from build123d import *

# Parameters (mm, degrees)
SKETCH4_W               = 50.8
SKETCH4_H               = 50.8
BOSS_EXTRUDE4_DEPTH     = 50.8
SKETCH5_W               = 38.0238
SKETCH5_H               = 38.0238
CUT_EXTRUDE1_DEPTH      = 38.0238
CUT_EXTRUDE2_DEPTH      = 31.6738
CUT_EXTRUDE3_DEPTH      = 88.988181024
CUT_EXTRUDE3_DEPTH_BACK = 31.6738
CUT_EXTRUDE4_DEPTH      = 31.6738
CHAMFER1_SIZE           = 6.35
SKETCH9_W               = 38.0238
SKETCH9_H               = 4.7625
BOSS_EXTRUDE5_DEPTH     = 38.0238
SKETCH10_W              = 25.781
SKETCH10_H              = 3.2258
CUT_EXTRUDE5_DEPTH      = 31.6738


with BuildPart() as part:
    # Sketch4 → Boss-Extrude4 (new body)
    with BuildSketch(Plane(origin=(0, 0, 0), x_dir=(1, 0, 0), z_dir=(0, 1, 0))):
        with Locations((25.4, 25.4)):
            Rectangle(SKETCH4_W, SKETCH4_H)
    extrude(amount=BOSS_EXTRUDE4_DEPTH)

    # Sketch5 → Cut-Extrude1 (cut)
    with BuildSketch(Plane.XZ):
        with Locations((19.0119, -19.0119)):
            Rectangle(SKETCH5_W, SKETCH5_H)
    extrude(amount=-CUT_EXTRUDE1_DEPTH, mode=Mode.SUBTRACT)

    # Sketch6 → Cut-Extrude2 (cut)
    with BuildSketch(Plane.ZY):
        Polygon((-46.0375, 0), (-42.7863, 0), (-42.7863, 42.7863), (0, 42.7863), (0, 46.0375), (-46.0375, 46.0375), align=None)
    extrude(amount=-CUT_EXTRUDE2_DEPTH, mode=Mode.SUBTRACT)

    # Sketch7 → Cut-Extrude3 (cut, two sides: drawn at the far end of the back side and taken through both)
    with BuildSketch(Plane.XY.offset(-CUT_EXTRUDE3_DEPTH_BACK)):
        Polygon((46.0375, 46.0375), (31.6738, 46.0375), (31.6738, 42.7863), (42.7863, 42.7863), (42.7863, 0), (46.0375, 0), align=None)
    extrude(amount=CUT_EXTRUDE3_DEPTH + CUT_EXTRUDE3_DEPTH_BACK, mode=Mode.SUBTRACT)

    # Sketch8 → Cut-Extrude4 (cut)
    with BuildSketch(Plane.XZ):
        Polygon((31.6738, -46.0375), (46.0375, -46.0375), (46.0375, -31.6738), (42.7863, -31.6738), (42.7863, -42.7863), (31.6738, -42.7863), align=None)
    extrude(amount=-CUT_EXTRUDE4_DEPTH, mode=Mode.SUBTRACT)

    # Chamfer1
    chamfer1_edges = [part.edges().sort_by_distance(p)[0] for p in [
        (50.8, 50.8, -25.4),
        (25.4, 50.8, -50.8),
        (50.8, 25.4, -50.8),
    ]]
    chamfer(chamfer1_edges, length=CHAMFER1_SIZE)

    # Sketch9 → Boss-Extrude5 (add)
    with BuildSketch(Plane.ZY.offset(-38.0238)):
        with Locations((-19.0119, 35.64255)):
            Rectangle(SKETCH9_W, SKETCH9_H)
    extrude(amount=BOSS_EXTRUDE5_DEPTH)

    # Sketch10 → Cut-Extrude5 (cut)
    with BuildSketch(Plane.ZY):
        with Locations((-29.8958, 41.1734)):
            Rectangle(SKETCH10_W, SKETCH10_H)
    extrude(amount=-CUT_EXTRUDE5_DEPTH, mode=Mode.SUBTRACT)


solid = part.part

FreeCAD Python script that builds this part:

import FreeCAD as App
import Part
import Sketcher

V = App.Vector
Q = App.Units.Quantity


def edges_at(feature, points):
    """Names of the edges that pass closest to the given points."""
    edges = feature.Shape.Edges
    near = lambda p: min(range(len(edges)), key=lambda i: edges[i].distToShape(Part.Vertex(*p))[0])
    return sorted({f"Edge{near(p) + 1}" for p in points})

doc = App.newDocument("Part")
body = doc.addObject("PartDesign::Body", "Body")

# Sketch on XZ plane
sketch1 = doc.addObject("Sketcher::SketchObject", "Sketch")
body.addObject(sketch1)
sketch1.AttachmentSupport = (doc.XZ_Plane, [""])
sketch1.MapMode = "FlatFace"
sketch1.addGeometry([
    Part.LineSegment(V(0, -50.8, 0), V(0, 0, 0)),
    Part.LineSegment(V(0, 0, 0), V(50.8, 0, 0)),
    Part.LineSegment(V(50.8, 0, 0), V(50.8, -50.8, 0)),
    Part.LineSegment(V(50.8, -50.8, 0), V(0, -50.8, 0)),
], False)
sketch1.addConstraint([
    Sketcher.Constraint("Coincident", 0, 2, 1, 1),
    Sketcher.Constraint("Coincident", 1, 2, 2, 1),
    Sketcher.Constraint("Coincident", 2, 2, 3, 1),
    Sketcher.Constraint("Coincident", 3, 2, 0, 1),
    Sketcher.Constraint("Vertical", 0),
    Sketcher.Constraint("Horizontal", 1),
    Sketcher.Constraint("Vertical", 2),
    Sketcher.Constraint("Horizontal", 3),
    Sketcher.Constraint("Coincident", 0, 2, -1, 1),
    Sketcher.Constraint("Equal", 3, 0),
    Sketcher.Constraint("DistanceX", 1, 1, 1, 2, Q("2 in")),
])
pad1 = doc.addObject("PartDesign::Pad", "Pad")
body.addObject(pad1)
pad1.Profile = sketch1
pad1.Length = Q("2 in")
pad1.Reversed = True

# Sketch on XZ plane
sketch2 = doc.addObject("Sketcher::SketchObject", "Sketch001")
body.addObject(sketch2)
sketch2.AttachmentSupport = (doc.XZ_Plane, [""])
sketch2.MapMode = "FlatFace"
sketch2.addGeometry([
    Part.LineSegment(V(0, 0, 0), V(0, -38.0238, 0)),
    Part.LineSegment(V(0, -38.0238, 0), V(38.0238, -38.0238, 0)),
    Part.LineSegment(V(38.0238, -38.0238, 0), V(38.0238, 0, 0)),
    Part.LineSegment(V(38.0238, 0, 0), V(0, 0, 0)),
], False)
sketch2.addConstraint([
    Sketcher.Constraint("Coincident", 0, 2, 1, 1),
    Sketcher.Constraint("Coincident", 1, 2, 2, 1),
    Sketcher.Constraint("Coincident", 2, 2, 3, 1),
    Sketcher.Constraint("Coincident", 3, 2, 0, 1),
    Sketcher.Constraint("Vertical", 0),
    Sketcher.Constraint("Horizontal", 1),
    Sketcher.Constraint("Vertical", 2),
    Sketcher.Constraint("Horizontal", 3),
    Sketcher.Constraint("Coincident", 3, 2, -1, 1),
    Sketcher.Constraint("Equal", 3, 0),
    Sketcher.Constraint("DistanceX", 1, 1, 1, 2, Q("1.497 in")),
])
pocket1 = doc.addObject("PartDesign::Pocket", "Pocket")
body.addObject(pocket1)
pocket1.Profile = sketch2
pocket1.Length = Q("1.497 in")

# Sketch on YZ plane
sketch3 = doc.addObject("Sketcher::SketchObject", "Sketch002")
body.addObject(sketch3)
sketch3.AttachmentSupport = (doc.YZ_Plane, [""])
sketch3.MapMode = "FlatFace"
sketch3.addGeometry([
    Part.LineSegment(V(0, -46.0375, 0), V(0, -42.7863, 0)),  # 0
    Part.LineSegment(V(0, -42.7863, 0), V(42.7863, -42.7863, 0)),  # 1
    Part.LineSegment(V(42.7863, -42.7863, 0), V(42.7863, 0, 0)),  # 2
    Part.LineSegment(V(42.7863, 0, 0), V(46.0375, 0, 0)),  # 3
    Part.LineSegment(V(46.0375, 0, 0), V(46.0375, -46.0375, 0)),  # 4
    Part.LineSegment(V(46.0375, -46.0375, 0), V(0, -46.0375, 0)),  # 5
], False)
sketch3.addConstraint([
    Sketcher.Constraint("Coincident", 0, 2, 1, 1),
    Sketcher.Constraint("Coincident", 1, 2, 2, 1),
    Sketcher.Constraint("Coincident", 2, 2, 3, 1),
    Sketcher.Constraint("Coincident", 3, 2, 4, 1),
    Sketcher.Constraint("Coincident", 4, 2, 5, 1),
    Sketcher.Constraint("Coincident", 5, 2, 0, 1),
    Sketcher.Constraint("Vertical", 0),
    Sketcher.Constraint("Horizontal", 1),
    Sketcher.Constraint("Vertical", 2),
    Sketcher.Constraint("Horizontal", 3),
    Sketcher.Constraint("Vertical", 4),
    Sketcher.Constraint("Horizontal", 5),
    Sketcher.Constraint("PointOnObject", 0, 2, -2),
    Sketcher.Constraint("PointOnObject", 2, 2, -1),
    Sketcher.Constraint("Equal", 3, 0),
    Sketcher.Constraint("Equal", 1, 2),
    Sketcher.Constraint("DistanceX", 3, 1, 3, 2, Q("0.128 in")),
    Sketcher.Constraint("DistanceX", 5, 2, 5, 1, Q("1.8125 in")),
])
pocket2 = doc.addObject("PartDesign::Pocket", "Pocket001")
body.addObject(pocket2)
pocket2.Profile = sketch3
pocket2.Length = Q("1.247 in")
pocket2.Reversed = True

# Sketch on XY plane
sketch4 = doc.addObject("Sketcher::SketchObject", "Sketch003")
body.addObject(sketch4)
sketch4.AttachmentSupport = (doc.XY_Plane, [""])
sketch4.MapMode = "FlatFace"
sketch4.addGeometry([
    Part.LineSegment(V(46.0375, 46.0375, 0), V(31.6738, 46.0375, 0)),  # 0
    Part.LineSegment(V(31.6738, 46.0375, 0), V(31.6738, 42.7863, 0)),  # 1
    Part.LineSegment(V(31.6738, 42.7863, 0), V(42.7863, 42.7863, 0)),  # 2
    Part.LineSegment(V(42.7863, 42.7863, 0), V(42.7863, 0, 0)),  # 3
    Part.LineSegment(V(42.7863, 0, 0), V(46.0375, 0, 0)),  # 4
    Part.LineSegment(V(46.0375, 0, 0), V(46.0375, 46.0375, 0)),  # 5
], False)
sketch4.addConstraint([
    Sketcher.Constraint("Coincident", 0, 2, 1, 1),
    Sketcher.Constraint("Coincident", 1, 2, 2, 1),
    Sketcher.Constraint("Coincident", 2, 2, 3, 1),
    Sketcher.Constraint("Coincident", 3, 2, 4, 1),
    Sketcher.Constraint("Coincident", 4, 2, 5, 1),
    Sketcher.Constraint("Coincident", 5, 2, 0, 1),
    Sketcher.Constraint("Horizontal", 0),
    Sketcher.Constraint("Vertical", 1),
    Sketcher.Constraint("Horizontal", 2),
    Sketcher.Constraint("Vertical", 3),
    Sketcher.Constraint("Horizontal", 4),
    Sketcher.Constraint("Vertical", 5),
    Sketcher.Constraint("PointOnObject", 3, 2, -1),
    Sketcher.Constraint("Equal", 4, 1),
    Sketcher.Constraint("DistanceX", 2, 1, 2, 2, Q("0.4375 in")),
    Sketcher.Constraint("DistanceX", 4, 1, 4, 2, Q("0.128 in")),
    Sketcher.Constraint("DistanceY", 5, 1, 5, 2, Q("1.8125 in")),
    Sketcher.Constraint("DistanceX", -1, 1, 0, 2, Q("1.247 in")),
])
pocket3 = doc.addObject("PartDesign::Pocket", "Pocket002")
body.addObject(pocket3)
pocket3.Profile = sketch4
pocket3.Type = "TwoLengths"
pocket3.Length = 88.988181
pocket3.Length2 = Q("1.247 in")
pocket3.Reversed = True

# Sketch on XZ plane
sketch5 = doc.addObject("Sketcher::SketchObject", "Sketch004")
body.addObject(sketch5)
sketch5.AttachmentSupport = (doc.XZ_Plane, [""])
sketch5.MapMode = "FlatFace"
sketch5.addGeometry([
    Part.LineSegment(V(31.6738, -46.0375, 0), V(46.0375, -46.0375, 0)),  # 0
    Part.LineSegment(V(46.0375, -46.0375, 0), V(46.0375, -31.6738, 0)),  # 1
    Part.LineSegment(V(46.0375, -31.6738, 0), V(42.7863, -31.6738, 0)),  # 2
    Part.LineSegment(V(42.7863, -31.6738, 0), V(42.7863, -42.7863, 0)),  # 3
    Part.LineSegment(V(42.7863, -42.7863, 0), V(31.6738, -42.7863, 0)),  # 4
    Part.LineSegment(V(31.6738, -42.7863, 0), V(31.6738, -46.0375, 0)),  # 5
], False)
sketch5.addConstraint([
    Sketcher.Constraint("Coincident", 0, 2, 1, 1),
    Sketcher.Constraint("Coincident", 1, 2, 2, 1),
    Sketcher.Constraint("Coincident", 2, 2, 3, 1),
    Sketcher.Constraint("Coincident", 3, 2, 4, 1),
    Sketcher.Constraint("Coincident", 4, 2, 5, 1),
    Sketcher.Constraint("Coincident", 5, 2, 0, 1),
    Sketcher.Constraint("Horizontal", 0),
    Sketcher.Constraint("Vertical", 1),
    Sketcher.Constraint("Horizontal", 2),
    Sketcher.Constraint("Vertical", 3),
    Sketcher.Constraint("Horizontal", 4),
    Sketcher.Constraint("Vertical", 5),
    Sketcher.Constraint("Equal", 0, 1),
    Sketcher.Constraint("Equal", 4, 3),
    Sketcher.Constraint("DistanceX", 2, 2, 2, 1, Q("0.128 in")),
    Sketcher.Constraint("DistanceX", 4, 2, 4, 1, Q("0.4375 in")),
    Sketcher.Constraint("DistanceX", -1, 1, 0, 2, Q("1.8125 in")),
    Sketcher.Constraint("DistanceY", 0, 2, -1, 1, Q("1.8125 in")),
])
pocket4 = doc.addObject("PartDesign::Pocket", "Pocket003")
body.addObject(pocket4)
pocket4.Profile = sketch5
pocket4.Length = Q("1.247 in")
doc.recompute()

chamfer = doc.addObject("PartDesign::Chamfer", "Chamfer")
body.addObject(chamfer)
chamfer.Base = (pocket4, edges_at(pocket4, [(50.8, 50.8, -25.4), (25.4, 50.8, -50.8), (50.8, 25.4, -50.8)]))
chamfer.Size = Q("0.25 in")

# Sketch on YZ plane
sketch6 = doc.addObject("Sketcher::SketchObject", "Sketch005")
body.addObject(sketch6)
sketch6.AttachmentSupport = (doc.YZ_Plane, [""])
sketch6.MapMode = "FlatFace"
sketch6.AttachmentOffset = App.Placement(V(0, 0, 1.497 * 25.4), App.Rotation())
sketch6.addGeometry([
    Part.LineSegment(V(38.0238, -38.0238, 0), V(33.2613, -38.0238, 0)),
    Part.LineSegment(V(33.2613, -38.0238, 0), V(33.2613, 0, 0)),
    Part.LineSegment(V(33.2613, 0, 0), V(38.0238, 0, 0)),
    Part.LineSegment(V(38.0238, 0, 0), V(38.0238, -38.0238, 0)),
], False)
sketch6.addConstraint([
    Sketcher.Constraint("Coincident", 0, 2, 1, 1),
    Sketcher.Constraint("Coincident", 1, 2, 2, 1),
    Sketcher.Constraint("Coincident", 2, 2, 3, 1),
    Sketcher.Constraint("Coincident", 3, 2, 0, 1),
    Sketcher.Constraint("Horizontal", 0),
    Sketcher.Constraint("Vertical", 1),
    Sketcher.Constraint("Horizontal", 2),
    Sketcher.Constraint("Vertical", 3),
    Sketcher.Constraint("PointOnObject", 1, 2, -1),
    Sketcher.Constraint("DistanceX", 0, 2, 0, 1, Q("0.1875 in")),
    Sketcher.Constraint("DistanceY", 1, 1, 1, 2, Q("1.497 in")),
    Sketcher.Constraint("DistanceX", -1, 1, 2, 2, Q("1.497 in")),
])
pad2 = doc.addObject("PartDesign::Pad", "Pad001")
body.addObject(pad2)
pad2.Profile = sketch6
pad2.Length = Q("1.497 in")
pad2.Reversed = True

# Sketch on YZ plane
sketch7 = doc.addObject("Sketcher::SketchObject", "Sketch006")
body.addObject(sketch7)
sketch7.AttachmentSupport = (doc.YZ_Plane, [""])
sketch7.MapMode = "FlatFace"
sketch7.addGeometry([
    Part.LineSegment(V(42.7863, -42.7863, 0), V(39.5605, -42.7863, 0)),
    Part.LineSegment(V(39.5605, -42.7863, 0), V(39.5605, -17.0053, 0)),
    Part.LineSegment(V(39.5605, -17.0053, 0), V(42.7863, -17.0053, 0)),
    Part.LineSegment(V(42.7863, -17.0053, 0), V(42.7863, -42.7863, 0)),
], False)
sketch7.addConstraint([
    Sketcher.Constraint("Coincident", 0, 2, 1, 1),
    Sketcher.Constraint("Coincident", 1, 2, 2, 1),
    Sketcher.Constraint("Coincident", 2, 2, 3, 1),
    Sketcher.Constraint("Coincident", 3, 2, 0, 1),
    Sketcher.Constraint("Horizontal", 0),
    Sketcher.Constraint("Vertical", 1),
    Sketcher.Constraint("Horizontal", 2),
    Sketcher.Constraint("Vertical", 3),
    Sketcher.Constraint("DistanceX", 0, 2, 0, 1, Q("0.127 in")),
    Sketcher.Constraint("DistanceY", 1, 1, 1, 2, Q("1.015 in")),
    Sketcher.Constraint("DistanceX", -1, 1, 0, 2, Q("1.5575 in")),
    Sketcher.Constraint("DistanceY", 0, 2, -1, 1, Q("1.6845 in")),
])
pocket5 = doc.addObject("PartDesign::Pocket", "Pocket004")
body.addObject(pocket5)
pocket5.Profile = sketch7
pocket5.Length = Q("1.247 in")
pocket5.Reversed = True

doc.recompute()
